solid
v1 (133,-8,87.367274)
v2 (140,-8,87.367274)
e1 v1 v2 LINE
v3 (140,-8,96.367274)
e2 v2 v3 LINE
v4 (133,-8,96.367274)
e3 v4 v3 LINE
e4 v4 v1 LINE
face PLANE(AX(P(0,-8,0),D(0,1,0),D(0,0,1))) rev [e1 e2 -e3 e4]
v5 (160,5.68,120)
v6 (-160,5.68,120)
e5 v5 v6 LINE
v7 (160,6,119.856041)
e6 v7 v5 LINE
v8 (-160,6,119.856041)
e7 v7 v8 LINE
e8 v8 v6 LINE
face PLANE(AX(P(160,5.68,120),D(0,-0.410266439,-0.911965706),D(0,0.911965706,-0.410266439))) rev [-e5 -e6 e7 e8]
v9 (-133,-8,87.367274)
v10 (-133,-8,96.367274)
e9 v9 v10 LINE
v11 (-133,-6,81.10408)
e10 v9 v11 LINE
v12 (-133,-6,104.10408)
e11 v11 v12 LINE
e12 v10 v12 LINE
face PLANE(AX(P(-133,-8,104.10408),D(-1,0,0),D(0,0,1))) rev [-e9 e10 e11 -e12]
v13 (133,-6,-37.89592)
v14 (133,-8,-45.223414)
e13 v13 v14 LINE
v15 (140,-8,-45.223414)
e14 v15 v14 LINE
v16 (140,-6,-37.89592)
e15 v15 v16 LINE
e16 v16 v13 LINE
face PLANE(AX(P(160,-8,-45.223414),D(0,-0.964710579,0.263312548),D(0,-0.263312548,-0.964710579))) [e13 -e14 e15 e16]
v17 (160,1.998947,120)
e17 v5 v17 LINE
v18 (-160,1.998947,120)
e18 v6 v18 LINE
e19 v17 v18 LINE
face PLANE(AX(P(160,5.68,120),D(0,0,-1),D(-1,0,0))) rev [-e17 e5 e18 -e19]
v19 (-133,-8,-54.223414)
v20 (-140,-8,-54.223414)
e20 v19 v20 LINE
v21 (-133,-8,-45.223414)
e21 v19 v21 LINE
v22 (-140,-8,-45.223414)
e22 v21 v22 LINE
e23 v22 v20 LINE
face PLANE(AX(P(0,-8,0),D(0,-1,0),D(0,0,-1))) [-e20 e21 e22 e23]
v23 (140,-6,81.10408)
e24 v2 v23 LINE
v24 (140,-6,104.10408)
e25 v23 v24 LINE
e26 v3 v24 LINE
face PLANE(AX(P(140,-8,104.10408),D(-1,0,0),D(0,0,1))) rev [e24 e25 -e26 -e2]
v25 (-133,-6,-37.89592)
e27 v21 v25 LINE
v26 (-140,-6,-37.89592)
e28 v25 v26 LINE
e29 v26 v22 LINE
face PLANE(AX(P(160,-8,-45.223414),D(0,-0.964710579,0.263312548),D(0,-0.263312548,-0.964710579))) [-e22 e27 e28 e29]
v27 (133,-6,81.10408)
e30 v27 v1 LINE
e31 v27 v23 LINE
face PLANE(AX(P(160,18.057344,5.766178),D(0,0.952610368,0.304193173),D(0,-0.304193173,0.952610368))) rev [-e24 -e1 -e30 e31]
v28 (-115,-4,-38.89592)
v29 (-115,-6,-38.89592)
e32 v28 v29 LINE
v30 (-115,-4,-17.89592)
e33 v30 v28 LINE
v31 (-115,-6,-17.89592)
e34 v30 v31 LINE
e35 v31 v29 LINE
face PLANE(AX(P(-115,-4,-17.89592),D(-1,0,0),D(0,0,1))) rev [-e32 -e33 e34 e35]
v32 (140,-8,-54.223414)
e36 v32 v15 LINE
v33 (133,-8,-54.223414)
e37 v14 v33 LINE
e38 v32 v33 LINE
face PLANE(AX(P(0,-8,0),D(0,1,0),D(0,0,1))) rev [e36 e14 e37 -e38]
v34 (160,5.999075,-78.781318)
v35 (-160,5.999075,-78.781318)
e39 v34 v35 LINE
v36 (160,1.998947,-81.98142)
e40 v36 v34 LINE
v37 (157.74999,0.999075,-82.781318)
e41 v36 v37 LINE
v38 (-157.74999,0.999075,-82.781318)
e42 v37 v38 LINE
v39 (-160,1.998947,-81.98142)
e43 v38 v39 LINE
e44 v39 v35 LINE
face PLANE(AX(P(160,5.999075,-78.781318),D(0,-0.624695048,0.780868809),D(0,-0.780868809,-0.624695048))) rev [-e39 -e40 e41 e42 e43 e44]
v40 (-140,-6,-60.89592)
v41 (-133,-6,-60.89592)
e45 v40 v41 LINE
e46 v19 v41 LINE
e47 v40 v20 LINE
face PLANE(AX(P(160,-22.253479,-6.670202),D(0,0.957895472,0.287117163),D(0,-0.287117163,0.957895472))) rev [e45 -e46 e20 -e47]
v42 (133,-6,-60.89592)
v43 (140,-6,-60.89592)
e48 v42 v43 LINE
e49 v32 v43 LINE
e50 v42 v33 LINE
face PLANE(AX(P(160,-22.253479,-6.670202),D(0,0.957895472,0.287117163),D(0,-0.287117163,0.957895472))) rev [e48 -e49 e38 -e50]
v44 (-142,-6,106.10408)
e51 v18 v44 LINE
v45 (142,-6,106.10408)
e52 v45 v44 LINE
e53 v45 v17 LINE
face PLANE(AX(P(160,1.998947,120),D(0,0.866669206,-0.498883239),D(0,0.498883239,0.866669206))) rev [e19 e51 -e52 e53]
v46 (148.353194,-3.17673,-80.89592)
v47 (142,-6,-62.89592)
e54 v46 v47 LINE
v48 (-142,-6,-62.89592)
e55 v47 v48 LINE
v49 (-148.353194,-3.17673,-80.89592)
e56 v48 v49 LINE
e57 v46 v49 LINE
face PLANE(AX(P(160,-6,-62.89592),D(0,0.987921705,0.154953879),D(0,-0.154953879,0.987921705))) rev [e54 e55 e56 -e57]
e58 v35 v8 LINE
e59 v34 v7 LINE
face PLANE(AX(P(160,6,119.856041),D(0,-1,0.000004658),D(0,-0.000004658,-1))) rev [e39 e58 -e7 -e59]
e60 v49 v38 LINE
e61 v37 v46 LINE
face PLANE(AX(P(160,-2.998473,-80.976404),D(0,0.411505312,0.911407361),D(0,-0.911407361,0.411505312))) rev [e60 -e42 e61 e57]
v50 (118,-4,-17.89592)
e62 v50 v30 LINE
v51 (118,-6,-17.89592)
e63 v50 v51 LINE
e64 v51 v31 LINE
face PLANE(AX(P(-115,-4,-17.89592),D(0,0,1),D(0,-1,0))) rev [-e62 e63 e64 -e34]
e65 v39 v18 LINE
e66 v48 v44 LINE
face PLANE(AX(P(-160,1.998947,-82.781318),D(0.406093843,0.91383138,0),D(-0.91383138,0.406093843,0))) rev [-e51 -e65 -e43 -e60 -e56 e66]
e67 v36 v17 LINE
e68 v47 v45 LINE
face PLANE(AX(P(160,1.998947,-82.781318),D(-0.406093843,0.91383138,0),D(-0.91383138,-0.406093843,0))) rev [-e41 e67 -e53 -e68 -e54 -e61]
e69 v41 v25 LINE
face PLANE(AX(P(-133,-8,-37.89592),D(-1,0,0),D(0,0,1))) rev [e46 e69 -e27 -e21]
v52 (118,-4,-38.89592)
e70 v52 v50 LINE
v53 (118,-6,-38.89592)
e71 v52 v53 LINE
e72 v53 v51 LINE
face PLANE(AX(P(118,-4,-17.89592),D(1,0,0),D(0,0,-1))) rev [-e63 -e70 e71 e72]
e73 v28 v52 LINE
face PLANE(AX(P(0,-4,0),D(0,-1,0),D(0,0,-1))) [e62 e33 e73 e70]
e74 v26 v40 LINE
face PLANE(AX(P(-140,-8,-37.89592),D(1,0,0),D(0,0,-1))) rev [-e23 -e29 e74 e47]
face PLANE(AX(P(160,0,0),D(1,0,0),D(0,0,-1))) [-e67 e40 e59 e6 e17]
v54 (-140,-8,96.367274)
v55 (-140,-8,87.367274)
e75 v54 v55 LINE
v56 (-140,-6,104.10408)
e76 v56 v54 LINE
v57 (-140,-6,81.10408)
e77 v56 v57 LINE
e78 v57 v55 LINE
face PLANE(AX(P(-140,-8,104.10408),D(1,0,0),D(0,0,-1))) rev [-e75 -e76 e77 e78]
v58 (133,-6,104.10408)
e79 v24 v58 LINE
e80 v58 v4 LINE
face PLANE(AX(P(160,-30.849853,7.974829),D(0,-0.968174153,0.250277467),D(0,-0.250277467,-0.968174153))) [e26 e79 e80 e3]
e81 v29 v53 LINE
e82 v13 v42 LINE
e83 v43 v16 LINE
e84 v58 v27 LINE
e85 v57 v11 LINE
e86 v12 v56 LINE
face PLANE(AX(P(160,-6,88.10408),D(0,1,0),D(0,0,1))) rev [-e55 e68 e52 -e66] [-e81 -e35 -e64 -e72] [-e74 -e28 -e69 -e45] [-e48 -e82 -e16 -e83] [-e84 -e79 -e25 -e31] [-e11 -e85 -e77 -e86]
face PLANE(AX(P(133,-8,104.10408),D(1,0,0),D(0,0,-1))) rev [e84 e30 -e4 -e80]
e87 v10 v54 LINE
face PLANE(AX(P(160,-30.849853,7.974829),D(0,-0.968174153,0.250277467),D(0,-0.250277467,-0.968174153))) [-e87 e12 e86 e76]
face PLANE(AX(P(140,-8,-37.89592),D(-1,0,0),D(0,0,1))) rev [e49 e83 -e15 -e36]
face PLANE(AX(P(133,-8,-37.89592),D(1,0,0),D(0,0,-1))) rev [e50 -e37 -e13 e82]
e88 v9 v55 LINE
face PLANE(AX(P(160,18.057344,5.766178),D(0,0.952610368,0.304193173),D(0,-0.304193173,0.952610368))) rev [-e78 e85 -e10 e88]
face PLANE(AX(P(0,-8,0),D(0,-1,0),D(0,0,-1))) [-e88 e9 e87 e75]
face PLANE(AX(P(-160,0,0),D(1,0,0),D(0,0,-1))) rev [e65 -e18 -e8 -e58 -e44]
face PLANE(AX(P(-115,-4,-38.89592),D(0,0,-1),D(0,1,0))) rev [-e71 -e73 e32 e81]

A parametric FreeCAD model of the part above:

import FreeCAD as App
import Part
import Sketcher
Q = App.Units.Quantity


def add_polygon(sketch, points):
    """Adds a closed chain of lines whose ends are joined by coincident constraints."""
    first, n = sketch.GeometryCount, len(points)
    for a, b in zip(points, points[1:] + points[:1]):
        sketch.addGeometry(Part.LineSegment(App.Vector(*a, 0), App.Vector(*b, 0)), False)
    for i in range(n):
        sketch.addConstraint(Sketcher.Constraint("Coincident", first + i, 2, first + (i + 1) % n, 1))

doc = App.newDocument("Part")
params = doc.addObject("Spreadsheet::Sheet", "Params")
for row, (alias, value) in enumerate([
    ("sketch1_height", "169 mm"),
    ("pad1_length", "320 mm"),
    ("sketch2_width", "18 mm"),
    ("sketch3_width", "233 mm"),
    ("sketch3_height", "21 mm"),
    ("pocket2_length", "2 mm"),
    ("sketch4_width", "7 mm"),
    ("sketch4_height", "23 mm"),
    ("pad2_length", "2 mm"),
    ("sketch5_width", "2 mm"),
], start=1):
    params.set(f"A{row}", alias)
    params.set(f"B{row}", "=" + value)
    params.setAlias(f"B{row}", alias)

body = doc.addObject("PartDesign::Body", "Body")

# Sketch on YZ plane
sketch1 = doc.addObject("Sketcher::SketchObject", "Sketch")
body.addObject(sketch1)
sketch1.AttachmentSupport = (doc.YZ_Plane, [""])
sketch1.MapMode = "FlatFace"
add_polygon(sketch1, [(-6, -62.89592), (-3.17673, -80.89592), (-2.998473, -80.976404), (0.999075, -82.781318), (5.999075, -78.781318), (6, 119.856041), (5.68, 120), (1.998947, 120), (-6, 106.10408)])  # lines 0-8
sketch1.addConstraint([
    Sketcher.Constraint("Horizontal", 6),
    Sketcher.Constraint("Vertical", 8),
    Sketcher.Constraint("DistanceY", 8, 2, 8, 1, Q("169 mm")),
    Sketcher.Constraint("DistanceX", -1, 1, 4, 2, Q("6 mm")),
    Sketcher.Constraint("DistanceY", -1, 1, 5, 2, Q("120 mm")),
    Sketcher.Constraint("DistanceX", 7, 2, -1, 1, Q("6 mm")),
    Sketcher.Constraint("DistanceX", 2, 2, 3, 2, Q("5 mm")),
    Sketcher.Constraint("DistanceY", 2, 2, 3, 2, Q("4 mm")),
    Sketcher.Constraint("DistanceY", 0, 2, 7, 2, Q("187 mm")),
    Sketcher.Constraint("DistanceX", -1, 1, 5, 2, Q("5.68 mm")),
    Sketcher.Constraint("DistanceY", 2, 2, 0, 2, Q("1.885398 mm")),
    Sketcher.Constraint("Distance", 4, Q("198.637359 mm")),
    Sketcher.Constraint("Distance", 5, Q("0.35089 mm")),
    Sketcher.Constraint("DistanceX", 6, 2, 6, 1, Q("3.681053 mm")),
    Sketcher.Constraint("DistanceX", 0, 2, -1, 1, Q("3.17673 mm")),
    Sketcher.Constraint("DistanceX", 1, 2, 6, 2, Q("4.99742 mm")),
    Sketcher.Constraint("Distance", 1, Q("0.195585 mm")),
    Sketcher.Constraint("Distance", 2, Q("4.386126 mm")),
])
sketch1.setExpression("Constraints[11]", "Params.sketch1_height")
pad1 = doc.addObject("PartDesign::Pad", "Pad")
body.addObject(pad1)
pad1.Profile = sketch1
pad1.setExpression("Length", "Params.pad1_length")
pad1.Midplane = True

# Sketch on XY plane
sketch2 = doc.addObject("Sketcher::SketchObject", "Sketch001")
body.addObject(sketch2)
sketch2.AttachmentSupport = (doc.XY_Plane, [""])
sketch2.MapMode = "FlatFace"
add_polygon(sketch2, [(-160, -6), (-142, -6), (-160, 2)])  # lines 0-2
add_polygon(sketch2, [(142, -6), (160, -6), (160, 2)])  # lines 3-5
sketch2.addConstraint([
    Sketcher.Constraint("Horizontal", 0),
    Sketcher.Constraint("Vertical", 2),
    Sketcher.Constraint("Horizontal", 3),
    Sketcher.Constraint("Vertical", 4),
    Sketcher.Constraint("Symmetric", 2, 2, 3, 2, -2),
    Sketcher.Constraint("Horizontal", 1, 2, 4, 2),
    Sketcher.Constraint("Equal", 0, 3),
    Sketcher.Constraint("DistanceX", 0, 1, 0, 2, Q("18 mm")),
    Sketcher.Constraint("DistanceX", 0, 2, -1, 1, Q("142 mm")),
    Sketcher.Constraint("DistanceY", 0, 2, -1, 1, Q("6 mm")),
    Sketcher.Constraint("Distance", 1, Q("19.697288 mm")),
])
sketch2.setExpression("Constraints[13]", "Params.sketch2_width")
pocket1 = doc.addObject("PartDesign::Pocket", "Pocket")
body.addObject(pocket1)
pocket1.Profile = sketch2
pocket1.Type = "ThroughAll"
pocket1.Midplane = True

# Sketch on XZ plane
sketch3 = doc.addObject("Sketcher::SketchObject", "Sketch002")
body.addObject(sketch3)
sketch3.AttachmentSupport = (doc.XZ_Plane, [""])
sketch3.MapMode = "FlatFace"
sketch3.AttachmentOffset = App.Placement(App.Vector(0, 0, 6), App.Rotation())
add_polygon(sketch3, [(-115, -18), (-115, -39), (118, -39), (118, -18)])  # lines 0-3
sketch3.addConstraint([
    Sketcher.Constraint("Vertical", 0),
    Sketcher.Constraint("Horizontal", 1),
    Sketcher.Constraint("Vertical", 2),
    Sketcher.Constraint("Horizontal", 3),
    Sketcher.Constraint("DistanceX", 1, 1, 1, 2, Q("233 mm")),
    Sketcher.Constraint("DistanceY", 0, 2, 0, 1, Q("21 mm")),
    Sketcher.Constraint("DistanceX", 0, 2, -1, 1, Q("115 mm")),
    Sketcher.Constraint("DistanceY", 0, 2, -1, 1, Q("38.89592 mm")),
])
sketch3.setExpression("Constraints[8]", "Params.sketch3_width")
sketch3.setExpression("Constraints[9]", "Params.sketch3_height")
pocket2 = doc.addObject("PartDesign::Pocket", "Pocket001")
body.addObject(pocket2)
pocket2.Profile = sketch3
pocket2.setExpression("Length", "Params.pocket2_length")

# Sketch on XZ plane
sketch4 = doc.addObject("Sketcher::SketchObject", "Sketch003")
body.addObject(sketch4)
sketch4.AttachmentSupport = (doc.XZ_Plane, [""])
sketch4.MapMode = "FlatFace"
sketch4.AttachmentOffset = App.Placement(App.Vector(0, 0, 6), App.Rotation())
add_polygon(sketch4, [(-140, 104), (-140, 81), (-133, 81), (-133, 104)])  # lines 0-3
add_polygon(sketch4, [(-140, -38), (-140, -61), (-133, -61), (-133, -38)])  # lines 4-7
add_polygon(sketch4, [(133, -38), (133, -61), (140, -61), (140, -38)])  # lines 8-11
add_polygon(sketch4, [(133, 104), (133, 81), (140, 81), (140, 104)])  # lines 12-15
sketch4.addConstraint([
    Sketcher.Constraint("Vertical", 0),
    Sketcher.Constraint("Horizontal", 1),
    Sketcher.Constraint("Vertical", 2),
    Sketcher.Constraint("Horizontal", 3),
    Sketcher.Constraint("Vertical", 4),
    Sketcher.Constraint("Horizontal", 5),
    Sketcher.Constraint("Vertical", 6),
    Sketcher.Constraint("Horizontal", 7),
    Sketcher.Constraint("Vertical", 8),
    Sketcher.Constraint("Horizontal", 9),
    Sketcher.Constraint("Vertical", 10),
    Sketcher.Constraint("Horizontal", 11),
    Sketcher.Constraint("Vertical", 12),
    Sketcher.Constraint("Horizontal", 13),
    Sketcher.Constraint("Vertical", 14),
    Sketcher.Constraint("Horizontal", 15),
    Sketcher.Constraint("Symmetric", 5, 2, 8, 2, -2),
    Sketcher.Constraint("Symmetric", 7, 2, 10, 2, -2),
    Sketcher.Constraint("Symmetric", 1, 2, 12, 2, -2),
    Sketcher.Constraint("Symmetric", 3, 2, 14, 2, -2),
    Sketcher.Constraint("Vertical", 3, 2, 4, 2),
    Sketcher.Constraint("Vertical", 2, 2, 5, 2),
    Sketcher.Constraint("Equal", 2, 4),
    Sketcher.Constraint("DistanceX", 1, 1, 1, 2, Q("7 mm")),
    Sketcher.Constraint("DistanceY", 0, 2, 0, 1, Q("23 mm")),
    Sketcher.Constraint("DistanceX", 0, 2, -1, 1, Q("140 mm")),
    Sketcher.Constraint("DistanceY", 4, 2, 0, 2, Q("142 mm")),
    Sketcher.Constraint("DistanceY", -1, 1, 0, 2, Q("81.10408 mm")),
])
sketch4.setExpression("Constraints[39]", "Params.sketch4_width")
sketch4.setExpression("Constraints[40]", "Params.sketch4_height")
pad2 = doc.addObject("PartDesign::Pad", "Pad001")
body.addObject(pad2)
pad2.Profile = sketch4
pad2.setExpression("Length", "Params.pad2_length")

# Sketch on YZ plane
sketch5 = doc.addObject("Sketcher::SketchObject", "Sketch004")
body.addObject(sketch5)
sketch5.AttachmentSupport = (doc.YZ_Plane, [""])
sketch5.MapMode = "FlatFace"
sketch5.AttachmentOffset = App.Placement(App.Vector(0, 0, -140), App.Rotation())
add_polygon(sketch5, [(-8, -60.9), (-8, -54.2), (-6, -60.9)])  # lines 0-2
add_polygon(sketch5, [(-8, 96.4), (-8, 104.1), (-6, 104.1)])  # lines 3-5
add_polygon(sketch5, [(-6, 81.1), (-8, 81.1), (-8, 87.4)])  # lines 6-8
add_polygon(sketch5, [(-6, -37.9), (-8, -45.2), (-8, -37.9)])  # lines 9-11
sketch5.addConstraint([
    Sketcher.Constraint("Vertical", 0),
    Sketcher.Constraint("Horizontal", 2),
    Sketcher.Constraint("Vertical", 3),
    Sketcher.Constraint("Horizontal", 4),
    Sketcher.Constraint("Horizontal", 6),
    Sketcher.Constraint("Vertical", 7),
    Sketcher.Constraint("Vertical", 10),
    Sketcher.Constraint("Horizontal", 11),
    Sketcher.Constraint("Vertical", 2, 2, 3, 2),
    Sketcher.Constraint("Vertical", 1, 2, 4, 2),
    Sketcher.Constraint("Vertical", 5, 2, 6, 2),
    Sketcher.Constraint("Vertical", 4, 2, 8, 2),
    Sketcher.Constraint("Vertical", 7, 2, 9, 2),
    Sketcher.Constraint("Vertical", 8, 2, 11, 2),
    Sketcher.Constraint("DistanceX", 2, 2, 2, 1, Q("2 mm")),
    Sketcher.Constraint("DistanceX", 0, 2, -1, 1, Q("8 mm")),
    Sketcher.Constraint("DistanceY", 2, 2, 3, 2, Q("165 mm")),
    Sketcher.Constraint("DistanceY", 6, 2, 3, 2, Q("23 mm")),
    Sketcher.Constraint("DistanceY", 7, 2, 5, 2, Q("9 mm")),
    Sketcher.Constraint("DistanceY", 0, 2, 9, 2, Q("9 mm")),
    Sketcher.Constraint("DistanceY", 2, 2, 10, 2, Q("23 mm")),
    Sketcher.Constraint("Distance", 5, Q("7.991131 mm")),
    Sketcher.Constraint("DistanceY", 0, 1, 0, 2, Q("6.672506 mm")),
    Sketcher.Constraint("DistanceY", 1, 2, -1, 1, Q("60.89592 mm")),
])
sketch5.setExpression("Constraints[26]", "Params.sketch5_width")
pocket3 = doc.addObject("PartDesign::Pocket", "Pocket002")
body.addObject(pocket3)
pocket3.Profile = sketch5
pocket3.Type = "ThroughAll"
pocket3.Midplane = True

doc.recompute()
